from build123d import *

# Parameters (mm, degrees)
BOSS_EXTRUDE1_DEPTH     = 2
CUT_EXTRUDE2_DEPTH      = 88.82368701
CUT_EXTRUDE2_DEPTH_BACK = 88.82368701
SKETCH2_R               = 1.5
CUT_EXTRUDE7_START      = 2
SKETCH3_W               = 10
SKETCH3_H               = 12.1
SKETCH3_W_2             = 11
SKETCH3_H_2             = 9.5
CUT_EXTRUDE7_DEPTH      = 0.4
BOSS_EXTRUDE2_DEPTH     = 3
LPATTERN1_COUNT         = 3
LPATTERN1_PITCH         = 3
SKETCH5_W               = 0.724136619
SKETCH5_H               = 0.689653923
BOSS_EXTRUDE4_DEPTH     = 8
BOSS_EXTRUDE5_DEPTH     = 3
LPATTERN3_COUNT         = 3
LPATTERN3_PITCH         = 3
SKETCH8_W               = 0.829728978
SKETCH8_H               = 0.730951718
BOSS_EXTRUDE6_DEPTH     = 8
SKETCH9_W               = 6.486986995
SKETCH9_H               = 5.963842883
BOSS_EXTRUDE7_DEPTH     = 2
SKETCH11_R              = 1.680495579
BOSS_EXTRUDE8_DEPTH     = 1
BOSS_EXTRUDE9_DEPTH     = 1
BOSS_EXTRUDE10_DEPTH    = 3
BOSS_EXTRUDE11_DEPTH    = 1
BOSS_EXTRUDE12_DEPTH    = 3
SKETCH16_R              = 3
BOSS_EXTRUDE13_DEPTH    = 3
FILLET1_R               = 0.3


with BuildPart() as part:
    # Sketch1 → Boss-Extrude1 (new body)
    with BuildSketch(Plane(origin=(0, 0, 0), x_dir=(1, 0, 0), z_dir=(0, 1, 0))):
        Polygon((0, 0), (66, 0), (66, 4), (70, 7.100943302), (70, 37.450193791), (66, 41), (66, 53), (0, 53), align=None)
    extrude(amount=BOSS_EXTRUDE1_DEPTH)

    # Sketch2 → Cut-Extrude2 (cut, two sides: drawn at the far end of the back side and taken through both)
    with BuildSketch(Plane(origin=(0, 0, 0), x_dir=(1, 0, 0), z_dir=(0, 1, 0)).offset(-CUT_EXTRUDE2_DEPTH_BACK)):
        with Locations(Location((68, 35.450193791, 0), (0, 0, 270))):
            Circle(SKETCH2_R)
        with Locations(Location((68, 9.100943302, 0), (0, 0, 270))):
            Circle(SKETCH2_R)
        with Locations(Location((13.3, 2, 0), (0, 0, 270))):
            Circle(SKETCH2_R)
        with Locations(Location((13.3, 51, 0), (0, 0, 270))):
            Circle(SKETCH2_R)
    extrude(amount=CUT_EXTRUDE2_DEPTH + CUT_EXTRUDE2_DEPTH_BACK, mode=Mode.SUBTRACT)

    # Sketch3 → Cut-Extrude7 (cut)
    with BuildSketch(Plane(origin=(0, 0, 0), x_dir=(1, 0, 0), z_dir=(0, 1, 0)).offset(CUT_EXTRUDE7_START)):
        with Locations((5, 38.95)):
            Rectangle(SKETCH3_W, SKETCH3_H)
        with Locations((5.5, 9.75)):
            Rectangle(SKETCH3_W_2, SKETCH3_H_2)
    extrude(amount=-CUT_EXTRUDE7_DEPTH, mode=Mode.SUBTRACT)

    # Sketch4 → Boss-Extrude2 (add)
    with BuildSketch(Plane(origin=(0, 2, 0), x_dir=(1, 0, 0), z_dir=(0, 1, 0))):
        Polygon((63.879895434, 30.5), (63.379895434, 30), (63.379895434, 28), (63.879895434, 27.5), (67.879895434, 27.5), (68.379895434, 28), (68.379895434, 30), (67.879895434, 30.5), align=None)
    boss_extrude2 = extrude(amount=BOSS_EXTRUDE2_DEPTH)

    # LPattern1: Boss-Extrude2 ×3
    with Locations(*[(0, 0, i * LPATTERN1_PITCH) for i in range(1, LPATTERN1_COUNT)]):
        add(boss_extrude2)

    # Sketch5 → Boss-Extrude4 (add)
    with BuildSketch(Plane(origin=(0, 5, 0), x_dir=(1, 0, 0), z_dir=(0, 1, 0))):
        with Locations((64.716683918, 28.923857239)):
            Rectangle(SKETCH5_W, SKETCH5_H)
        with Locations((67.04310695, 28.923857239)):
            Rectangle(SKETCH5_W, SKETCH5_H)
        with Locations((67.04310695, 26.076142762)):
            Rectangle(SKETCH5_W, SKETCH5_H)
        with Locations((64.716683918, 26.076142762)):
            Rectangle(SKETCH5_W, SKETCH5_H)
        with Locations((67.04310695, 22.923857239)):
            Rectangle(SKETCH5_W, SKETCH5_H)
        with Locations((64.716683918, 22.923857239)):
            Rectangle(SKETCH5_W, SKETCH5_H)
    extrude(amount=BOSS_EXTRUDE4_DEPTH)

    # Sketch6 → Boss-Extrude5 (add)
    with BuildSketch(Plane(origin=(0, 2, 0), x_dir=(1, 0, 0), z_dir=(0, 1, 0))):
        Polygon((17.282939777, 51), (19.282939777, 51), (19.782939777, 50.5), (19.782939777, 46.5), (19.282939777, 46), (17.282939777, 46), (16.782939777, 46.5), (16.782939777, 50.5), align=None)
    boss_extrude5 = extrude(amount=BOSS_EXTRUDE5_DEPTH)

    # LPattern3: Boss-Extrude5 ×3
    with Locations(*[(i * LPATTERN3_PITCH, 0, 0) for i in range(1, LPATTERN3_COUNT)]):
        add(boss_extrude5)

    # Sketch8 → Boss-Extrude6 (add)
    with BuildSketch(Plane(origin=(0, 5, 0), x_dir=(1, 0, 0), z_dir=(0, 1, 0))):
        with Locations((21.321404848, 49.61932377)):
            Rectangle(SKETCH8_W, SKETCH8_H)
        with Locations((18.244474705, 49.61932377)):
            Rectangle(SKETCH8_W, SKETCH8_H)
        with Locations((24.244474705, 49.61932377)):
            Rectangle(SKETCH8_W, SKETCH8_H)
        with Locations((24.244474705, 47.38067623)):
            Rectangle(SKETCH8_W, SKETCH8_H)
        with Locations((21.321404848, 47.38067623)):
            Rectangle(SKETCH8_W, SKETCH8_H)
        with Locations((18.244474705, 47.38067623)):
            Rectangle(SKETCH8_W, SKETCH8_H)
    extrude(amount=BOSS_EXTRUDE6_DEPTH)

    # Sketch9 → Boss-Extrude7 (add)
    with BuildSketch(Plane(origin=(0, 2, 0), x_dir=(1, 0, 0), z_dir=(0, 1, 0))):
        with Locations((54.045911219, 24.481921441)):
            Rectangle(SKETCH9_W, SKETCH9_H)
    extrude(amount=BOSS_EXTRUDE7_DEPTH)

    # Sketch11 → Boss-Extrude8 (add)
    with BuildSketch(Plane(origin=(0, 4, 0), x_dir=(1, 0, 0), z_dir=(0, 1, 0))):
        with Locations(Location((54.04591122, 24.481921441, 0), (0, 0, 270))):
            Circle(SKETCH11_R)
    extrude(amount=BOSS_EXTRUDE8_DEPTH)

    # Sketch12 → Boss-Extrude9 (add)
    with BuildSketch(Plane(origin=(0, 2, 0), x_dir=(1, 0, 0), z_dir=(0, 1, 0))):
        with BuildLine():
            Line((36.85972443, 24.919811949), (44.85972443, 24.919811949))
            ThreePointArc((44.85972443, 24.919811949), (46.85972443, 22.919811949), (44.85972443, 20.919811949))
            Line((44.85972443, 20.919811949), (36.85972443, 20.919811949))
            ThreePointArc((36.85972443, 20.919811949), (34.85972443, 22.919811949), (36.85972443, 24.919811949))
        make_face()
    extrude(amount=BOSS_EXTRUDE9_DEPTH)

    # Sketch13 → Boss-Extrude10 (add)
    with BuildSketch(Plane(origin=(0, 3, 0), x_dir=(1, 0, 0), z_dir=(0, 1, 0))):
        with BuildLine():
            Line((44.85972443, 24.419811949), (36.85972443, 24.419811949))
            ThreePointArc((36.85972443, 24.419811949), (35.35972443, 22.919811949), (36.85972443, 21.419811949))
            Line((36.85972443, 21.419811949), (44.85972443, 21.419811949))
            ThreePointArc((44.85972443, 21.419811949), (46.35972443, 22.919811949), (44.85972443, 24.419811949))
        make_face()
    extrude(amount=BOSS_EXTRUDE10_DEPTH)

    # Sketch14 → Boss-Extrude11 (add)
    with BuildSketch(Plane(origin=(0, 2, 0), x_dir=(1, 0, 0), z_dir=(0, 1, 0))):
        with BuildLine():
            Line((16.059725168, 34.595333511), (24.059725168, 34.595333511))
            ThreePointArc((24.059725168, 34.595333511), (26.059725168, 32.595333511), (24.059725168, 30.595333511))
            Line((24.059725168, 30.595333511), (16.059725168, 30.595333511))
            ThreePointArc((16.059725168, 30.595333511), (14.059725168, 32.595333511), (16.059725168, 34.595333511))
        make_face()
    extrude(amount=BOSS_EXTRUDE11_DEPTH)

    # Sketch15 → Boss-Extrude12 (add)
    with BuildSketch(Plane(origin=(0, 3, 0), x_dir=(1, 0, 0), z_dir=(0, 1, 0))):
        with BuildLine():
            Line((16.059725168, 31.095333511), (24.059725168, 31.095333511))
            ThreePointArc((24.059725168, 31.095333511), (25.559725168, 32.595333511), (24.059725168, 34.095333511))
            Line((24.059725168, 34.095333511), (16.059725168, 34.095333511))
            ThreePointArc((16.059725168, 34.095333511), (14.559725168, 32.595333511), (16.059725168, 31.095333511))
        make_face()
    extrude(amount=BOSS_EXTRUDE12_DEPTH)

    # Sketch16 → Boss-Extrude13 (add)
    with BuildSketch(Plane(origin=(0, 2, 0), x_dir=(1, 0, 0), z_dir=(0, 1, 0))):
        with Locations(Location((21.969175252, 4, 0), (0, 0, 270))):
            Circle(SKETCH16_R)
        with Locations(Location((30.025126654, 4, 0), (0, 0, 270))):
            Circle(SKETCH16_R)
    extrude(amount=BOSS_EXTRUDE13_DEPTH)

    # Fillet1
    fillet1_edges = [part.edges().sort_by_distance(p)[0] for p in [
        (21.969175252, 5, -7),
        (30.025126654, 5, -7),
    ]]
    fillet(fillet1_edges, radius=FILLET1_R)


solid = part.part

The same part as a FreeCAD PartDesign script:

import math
import FreeCAD as App
import Part
import Sketcher
from FreeCAD import Vector
Q = App.Units.Quantity


def edges_at(feature, points):
    """Names of the edges that pass closest to the given points."""
    edges = feature.Shape.Edges
    near = lambda p: min(range(len(edges)), key=lambda i: edges[i].distToShape(Part.Vertex(*p))[0])
    return sorted({f"Edge{near(p) + 1}" for p in points})

doc = App.newDocument("Part")
body = doc.addObject("PartDesign::Body", "Body")

# Sketch on XZ plane
sketch1 = body.newObject("Sketcher::SketchObject", "Sketch")
sketch1.AttachmentSupport = (doc.getObject("XZ_Plane"), [""])
sketch1.MapMode = "FlatFace"
sketch1.addGeometry(Part.LineSegment(Vector(0, 0, 0), Vector(66, 0, 0)), False)
sketch1.addGeometry(Part.LineSegment(Vector(66, 0, 0), Vector(66, -4, 0)), False)
sketch1.addGeometry(Part.LineSegment(Vector(66, -4, 0), Vector(70, -7.1, 0)), False)
sketch1.addGeometry(Part.LineSegment(Vector(70, -7.1, 0), Vector(70, -37.5, 0)), False)
sketch1.addGeometry(Part.LineSegment(Vector(70, -37.5, 0), Vector(66, -41, 0)), False)
sketch1.addGeometry(Part.LineSegment(Vector(66, -41, 0), Vector(66, -53, 0)), False)
sketch1.addGeometry(Part.LineSegment(Vector(66, -53, 0), Vector(0, -53, 0)), False)
sketch1.addGeometry(Part.LineSegment(Vector(0, -53, 0), Vector(0, 0, 0)), False)
sketch1.addConstraint(Sketcher.Constraint("Coincident", 0, 2, 1, 1))
sketch1.addConstraint(Sketcher.Constraint("Coincident", 1, 2, 2, 1))
sketch1.addConstraint(Sketcher.Constraint("Coincident", 2, 2, 3, 1))
sketch1.addConstraint(Sketcher.Constraint("Coincident", 3, 2, 4, 1))
sketch1.addConstraint(Sketcher.Constraint("Coincident", 4, 2, 5, 1))
sketch1.addConstraint(Sketcher.Constraint("Coincident", 5, 2, 6, 1))
sketch1.addConstraint(Sketcher.Constraint("Coincident", 6, 2, 7, 1))
sketch1.addConstraint(Sketcher.Constraint("Coincident", 7, 2, 0, 1))
sketch1.addConstraint(Sketcher.Constraint("Horizontal", 0))
sketch1.addConstraint(Sketcher.Constraint("Vertical", 1))
sketch1.addConstraint(Sketcher.Constraint("Vertical", 3))
sketch1.addConstraint(Sketcher.Constraint("Vertical", 5))
sketch1.addConstraint(Sketcher.Constraint("Horizontal", 6))
sketch1.addConstraint(Sketcher.Constraint("Vertical", 7))
sketch1.addConstraint(Sketcher.Constraint("Coincident", 7, 2, -1, 1))
sketch1.addConstraint(Sketcher.Constraint("Vertical", 1, 2, 4, 2))
sketch1.addConstraint(Sketcher.Constraint("DistanceX", 0, 1, 0, 2, Q("66 mm")))
sketch1.addConstraint(Sketcher.Constraint("DistanceY", 1, 2, 1, 1, Q("4 mm")))
sketch1.addConstraint(Sketcher.Constraint("DistanceY", 5, 2, 5, 1, Q("12 mm")))
sketch1.addConstraint(Sketcher.Constraint("DistanceY", 7, 1, 7, 2, Q("53 mm")))
sketch1.addConstraint(Sketcher.Constraint("DistanceX", -1, 1, 2, 2, Q("70 mm")))
sketch1.addConstraint(Sketcher.Constraint("Distance", 4, Q("5.348002 mm")))
sketch1.addConstraint(Sketcher.Constraint("DistanceY", 3, 2, 3, 1, Q("30.34925 mm")))
pad1 = body.newObject("PartDesign::Pad", "Pad")
pad1.Profile = sketch1
pad1.Length = 2
pad1.Reversed = True

# Sketch on XZ plane
sketch2 = body.newObject("Sketcher::SketchObject", "Sketch001")
sketch2.AttachmentSupport = (doc.getObject("XZ_Plane"), [""])
sketch2.MapMode = "FlatFace"
sketch2.addGeometry(Part.Circle(Vector(68, -35.5, 0), Vector(0, 0, 1), 1.5), False)
sketch2.addGeometry(Part.Circle(Vector(68, -9.1, 0), Vector(0, 0, 1), 1.5), False)
sketch2.addGeometry(Part.Circle(Vector(13.3, -2, 0), Vector(0, 0, 1), 1.5), False)
sketch2.addGeometry(Part.Circle(Vector(13.3, -51, 0), Vector(0, 0, 1), 1.5), False)
sketch2.addConstraint(Sketcher.Constraint("Equal", 0, 1))
sketch2.addConstraint(Sketcher.Constraint("Equal", 1, 2))
sketch2.addConstraint(Sketcher.Constraint("Equal", 2, 3))
sketch2.addConstraint(Sketcher.Constraint("Vertical", 0, 3, 1, 3))
sketch2.addConstraint(Sketcher.Constraint("Vertical", 2, 3, 3, 3))
sketch2.addConstraint(Sketcher.Constraint("Diameter", 0, Q("3 mm")))
sketch2.addConstraint(Sketcher.Constraint("DistanceX", -1, 1, 0, 3, Q("68 mm")))
sketch2.addConstraint(Sketcher.Constraint("DistanceY", 2, 3, -1, 1, Q("2 mm")))
sketch2.addConstraint(Sketcher.Constraint("DistanceY", 3, 3, -1, 1, Q("51 mm")))
sketch2.addConstraint(Sketcher.Constraint("DistanceX", -1, 1, 2, 3, Q("13.3 mm")))
sketch2.addConstraint(Sketcher.Constraint("DistanceY", 0, 3, 1, 3, Q("26.34925 mm")))
sketch2.addConstraint(Sketcher.Constraint("DistanceY", 0, 3, -1, 1, Q("35.450194 mm")))
pocket1 = body.newObject("PartDesign::Pocket", "Pocket")
pocket1.Profile = sketch2
pocket1.Type = "ThroughAll"
pocket1.Midplane = True

# Sketch on XZ plane
sketch3 = body.newObject("Sketcher::SketchObject", "Sketch002")
sketch3.AttachmentSupport = (doc.getObject("XZ_Plane"), [""])
sketch3.MapMode = "FlatFace"
sketch3.AttachmentOffset = App.Placement(Vector(0, 0, -2), App.Rotation())
sketch3.addGeometry(Part.LineSegment(Vector(0, -45, 0), Vector(0, -33, 0)), False)
sketch3.addGeometry(Part.LineSegment(Vector(0, -33, 0), Vector(10, -33, 0)), False)
sketch3.addGeometry(Part.LineSegment(Vector(10, -33, 0), Vector(10, -45, 0)), False)
sketch3.addGeometry(Part.LineSegment(Vector(10, -45, 0), Vector(0, -45, 0)), False)
sketch3.addGeometry(Part.LineSegment(Vector(0, -14, 0), Vector(0, -5, 0)), False)
sketch3.addGeometry(Part.LineSegment(Vector(0, -5, 0), Vector(11, -5, 0)), False)
sketch3.addGeometry(Part.LineSegment(Vector(11, -5, 0), Vector(11, -14, 0)), False)
sketch3.addGeometry(Part.LineSegment(Vector(11, -14, 0), Vector(0, -14, 0)), False)
sketch3.addConstraint(Sketcher.Constraint("Coincident", 0, 2, 1, 1))
sketch3.addConstraint(Sketcher.Constraint("Coincident", 1, 2, 2, 1))
sketch3.addConstraint(Sketcher.Constraint("Coincident", 2, 2, 3, 1))
sketch3.addConstraint(Sketcher.Constraint("Coincident", 3, 2, 0, 1))
sketch3.addConstraint(Sketcher.Constraint("Coincident", 4, 2, 5, 1))
sketch3.addConstraint(Sketcher.Constraint("Coincident", 5, 2, 6, 1))
sketch3.addConstraint(Sketcher.Constraint("Coincident", 6, 2, 7, 1))
sketch3.addConstraint(Sketcher.Constraint("Coincident", 7, 2, 4, 1))
sketch3.addConstraint(Sketcher.Constraint("Vertical", 0))
sketch3.addConstraint(Sketcher.Constraint("Horizontal", 1))
sketch3.addConstraint(Sketcher.Constraint("Vertical", 2))
sketch3.addConstraint(Sketcher.Constraint("Horizontal", 3))
sketch3.addConstraint(Sketcher.Constraint("Vertical", 4))
sketch3.addConstraint(Sketcher.Constraint("Horizontal", 5))
sketch3.addConstraint(Sketcher.Constraint("Vertical", 6))
sketch3.addConstraint(Sketcher.Constraint("Horizontal", 7))
sketch3.addConstraint(Sketcher.Constraint("PointOnObject", 0, 2, -2))
sketch3.addConstraint(Sketcher.Constraint("PointOnObject", 4, 2, -2))
sketch3.addConstraint(Sketcher.Constraint("DistanceX", 1, 1, 1, 2, Q("10 mm")))
sketch3.addConstraint(Sketcher.Constraint("DistanceX", 5, 1, 5, 2, Q("11 mm")))
sketch3.addConstraint(Sketcher.Constraint("DistanceY", 0, 1, 0, 2, Q("12.1 mm")))
sketch3.addConstraint(Sketcher.Constraint("DistanceY", 4, 1, 4, 2, Q("9.5 mm")))
sketch3.addConstraint(Sketcher.Constraint("DistanceY", 2, 2, -1, 1, Q("45 mm")))
sketch3.addConstraint(Sketcher.Constraint("DistanceY", 4, 2, -1, 1, Q("5 mm")))
pocket2 = body.newObject("PartDesign::Pocket", "Pocket001")
pocket2.Profile = sketch3
pocket2.Length = 0.4
pocket2.Reversed = True

# Sketch on XZ plane
sketch4 = body.newObject("Sketcher::SketchObject", "Sketch003")
sketch4.AttachmentSupport = (doc.getObject("XZ_Plane"), [""])
sketch4.MapMode = "FlatFace"
sketch4.AttachmentOffset = App.Placement(Vector(0, 0, -2), App.Rotation())
sketch4.addGeometry(Part.LineSegment(Vector(63.9, -30.5, 0), Vector(63.4, -30, 0)), False)
sketch4.addGeometry(Part.LineSegment(Vector(63.4, -30, 0), Vector(63.4, -28, 0)), False)
sketch4.addGeometry(Part.LineSegment(Vector(63.4, -28, 0), Vector(63.9, -27.5, 0)), False)
sketch4.addGeometry(Part.LineSegment(Vector(63.9, -27.5, 0), Vector(67.9, -27.5, 0)), False)
sketch4.addGeometry(Part.LineSegment(Vector(67.9, -27.5, 0), Vector(68.4, -28, 0)), False)
sketch4.addGeometry(Part.LineSegment(Vector(68.4, -28, 0), Vector(68.4, -30, 0)), False)
sketch4.addGeometry(Part.LineSegment(Vector(68.4, -30, 0), Vector(67.9, -30.5, 0)), False)
sketch4.addGeometry(Part.LineSegment(Vector(67.9, -30.5, 0), Vector(63.9, -30.5, 0)), False)
sketch4.addConstraint(Sketcher.Constraint("Coincident", 0, 2, 1, 1))
sketch4.addConstraint(Sketcher.Constraint("Coincident", 1, 2, 2, 1))
sketch4.addConstraint(Sketcher.Constraint("Coincident", 2, 2, 3, 1))
sketch4.addConstraint(Sketcher.Constraint("Coincident", 3, 2, 4, 1))
sketch4.addConstraint(Sketcher.Constraint("Coincident", 4, 2, 5, 1))
sketch4.addConstraint(Sketcher.Constraint("Coincident", 5, 2, 6, 1))
sketch4.addConstraint(Sketcher.Constraint("Coincident", 6, 2, 7, 1))
sketch4.addConstraint(Sketcher.Constraint("Coincident", 7, 2, 0, 1))
sketch4.addConstraint(Sketcher.Constraint("Vertical", 1))
sketch4.addConstraint(Sketcher.Constraint("Horizontal", 3))
sketch4.addConstraint(Sketcher.Constraint("Vertical", 5))
sketch4.addConstraint(Sketcher.Constraint("Horizontal", 7))
sketch4.addConstraint(Sketcher.Constraint("Perpendicular", 0, 2))
sketch4.addConstraint(Sketcher.Constraint("Perpendicular", 2, 4))
sketch4.addConstraint(Sketcher.Constraint("Perpendicular", 4, 6))
sketch4.addConstraint(Sketcher.Constraint("Horizontal", 1, 2, 4, 2))
sketch4.addConstraint(Sketcher.Constraint("Horizontal", 0, 2, 5, 2))
sketch4.addConstraint(Sketcher.Constraint("Vertical", 3, 2, 6, 2))
sketch4.addConstraint(Sketcher.Constraint("Vertical", 2, 2, 7, 2))
sketch4.addConstraint(Sketcher.Constraint("DistanceX", 3, 1, 3, 2, Q("4 mm")))
sketch4.addConstraint(Sketcher.Constraint("DistanceY", 1, 1, 1, 2, Q("2 mm")))
sketch4.addConstraint(Sketcher.Constraint("DistanceY", 0, 2, -1, 1, Q("30 mm")))
sketch4.addConstraint(Sketcher.Constraint("DistanceX", 1, 2, 4, 2, Q("5 mm")))
sketch4.addConstraint(Sketcher.Constraint("DistanceX", -1, 1, 0, 2, Q("63.379895 mm")))
pad2 = body.newObject("PartDesign::Pad", "Pad001")
pad2.Profile = sketch4
pad2.Length = 3
pad2.Reversed = True
doc.recompute()

linearpattern = body.newObject("PartDesign::LinearPattern", "LinearPattern")
linearpattern.Originals = [pad2]
linearpattern.Direction = (doc.getObject("Z_Axis"), [""])
linearpattern.Mode = "offset"
linearpattern.Offset = 3
linearpattern.Occurrences = 3
body.Tip = linearpattern

# Sketch on XZ plane
sketch5 = body.newObject("Sketcher::SketchObject", "Sketch004")
sketch5.AttachmentSupport = (doc.getObject("XZ_Plane"), [""])
sketch5.MapMode = "FlatFace"
sketch5.AttachmentOffset = App.Placement(Vector(0, 0, -5), App.Rotation())
sketch5.addGeometry(Part.LineSegment(Vector(64.4, -29.3, 0), Vector(64.4, -28.6, 0)), False)
sketch5.addGeometry(Part.LineSegment(Vector(64.4, -28.6, 0), Vector(65.1, -28.6, 0)), False)
sketch5.addGeometry(Part.LineSegment(Vector(65.1, -28.6, 0), Vector(65.1, -29.3, 0)), False)
sketch5.addGeometry(Part.LineSegment(Vector(65.1, -29.3, 0), Vector(64.4, -29.3, 0)), False)
sketch5.addGeometry(Part.LineSegment(Vector(66.7, -29.3, 0), Vector(66.7, -28.6, 0)), False)
sketch5.addGeometry(Part.LineSegment(Vector(66.7, -28.6, 0), Vector(67.4, -28.6, 0)), False)
sketch5.addGeometry(Part.LineSegment(Vector(67.4, -28.6, 0), Vector(67.4, -29.3, 0)), False)
sketch5.addGeometry(Part.LineSegment(Vector(67.4, -29.3, 0), Vector(66.7, -29.3, 0)), False)
sketch5.addGeometry(Part.LineSegment(Vector(66.7, -26.4, 0), Vector(66.7, -25.7, 0)), False)
sketch5.addGeometry(Part.LineSegment(Vector(66.7, -25.7, 0), Vector(67.4, -25.7, 0)), False)
sketch5.addGeometry(Part.LineSegment(Vector(67.4, -25.7, 0), Vector(67.4, -26.4, 0)), False)
sketch5.addGeometry(Part.LineSegment(Vector(67.4, -26.4, 0), Vector(66.7, -26.4, 0)), False)
sketch5.addGeometry(Part.LineSegment(Vector(64.4, -26.4, 0), Vector(64.4, -25.7, 0)), False)
sketch5.addGeometry(Part.LineSegment(Vector(64.4, -25.7, 0), Vector(65.1, -25.7, 0)), False)
sketch5.addGeometry(Part.LineSegment(Vector(65.1, -25.7, 0), Vector(65.1, -26.4, 0)), False)
sketch5.addGeometry(Part.LineSegment(Vector(65.1, -26.4, 0), Vector(64.4, -26.4, 0)), False)
sketch5.addGeometry(Part.LineSegment(Vector(66.7, -23.3, 0), Vector(66.7, -22.6, 0)), False)
sketch5.addGeometry(Part.LineSegment(Vector(66.7, -22.6, 0), Vector(67.4, -22.6, 0)), False)
sketch5.addGeometry(Part.LineSegment(Vector(67.4, -22.6, 0), Vector(67.4, -23.3, 0)), False)
sketch5.addGeometry(Part.LineSegment(Vector(67.4, -23.3, 0), Vector(66.7, -23.3, 0)), False)
sketch5.addGeometry(Part.LineSegment(Vector(64.4, -23.3, 0), Vector(64.4, -22.6, 0)), False)
sketch5.addGeometry(Part.LineSegment(Vector(64.4, -22.6, 0), Vector(65.1, -22.6, 0)), False)
sketch5.addGeometry(Part.LineSegment(Vector(65.1, -22.6, 0), Vector(65.1, -23.3, 0)), False)
sketch5.addGeometry(Part.LineSegment(Vector(65.1, -23.3, 0), Vector(64.4, -23.3, 0)), False)
sketch5.addConstraint(Sketcher.Constraint("Coincident", 0, 2, 1, 1))
sketch5.addConstraint(Sketcher.Constraint("Coincident", 1, 2, 2, 1))
sketch5.addConstraint(Sketcher.Constraint("Coincident", 2, 2, 3, 1))
sketch5.addConstraint(Sketcher.Constraint("Coincident", 3, 2, 0, 1))
sketch5.addConstraint(Sketcher.Constraint("Coincident", 4, 2, 5, 1))
sketch5.addConstraint(Sketcher.Constraint("Coincident", 5, 2, 6, 1))
sketch5.addConstraint(Sketcher.Constraint("Coincident", 6, 2, 7, 1))
sketch5.addConstraint(Sketcher.Constraint("Coincident", 7, 2, 4, 1))
sketch5.addConstraint(Sketcher.Constraint("Coincident", 8, 2, 9, 1))
sketch5.addConstraint(Sketcher.Constraint("Coincident", 9, 2, 10, 1))
sketch5.addConstraint(Sketcher.Constraint("Coincident", 10, 2, 11, 1))
sketch5.addConstraint(Sketcher.Constraint("Coincident", 11, 2, 8, 1))
sketch5.addConstraint(Sketcher.Constraint("Coincident", 12, 2, 13, 1))
sketch5.addConstraint(Sketcher.Constraint("Coincident", 13, 2, 14, 1))
sketch5.addConstraint(Sketcher.Constraint("Coincident", 14, 2, 15, 1))
sketch5.addConstraint(Sketcher.Constraint("Coincident", 15, 2, 12, 1))
sketch5.addConstraint(Sketcher.Constraint("Coincident", 16, 2, 17, 1))
sketch5.addConstraint(Sketcher.Constraint("Coincident", 17, 2, 18, 1))
sketch5.addConstraint(Sketcher.Constraint("Coincident", 18, 2, 19, 1))
sketch5.addConstraint(Sketcher.Constraint("Coincident", 19, 2, 16, 1))
sketch5.addConstraint(Sketcher.Constraint("Coincident", 20, 2, 21, 1))
sketch5.addConstraint(Sketcher.Constraint("Coincident", 21, 2, 22, 1))
sketch5.addConstraint(Sketcher.Constraint("Coincident", 22, 2, 23, 1))
sketch5.addConstraint(Sketcher.Constraint("Coincident", 23, 2, 20, 1))
sketch5.addConstraint(Sketcher.Constraint("Vertical", 0))
sketch5.addConstraint(Sketcher.Constraint("Horizontal", 1))
sketch5.addConstraint(Sketcher.Constraint("Vertical", 2))
sketch5.addConstraint(Sketcher.Constraint("Horizontal", 3))
sketch5.addConstraint(Sketcher.Constraint("Vertical", 4))
sketch5.addConstraint(Sketcher.Constraint("Horizontal", 5))
sketch5.addConstraint(Sketcher.Constraint("Vertical", 6))
sketch5.addConstraint(Sketcher.Constraint("Horizontal", 7))
sketch5.addConstraint(Sketcher.Constraint("Vertical", 8))
sketch5.addConstraint(Sketcher.Constraint("Horizontal", 9))
sketch5.addConstraint(Sketcher.Constraint("Vertical", 10))
sketch5.addConstraint(Sketcher.Constraint("Horizontal", 11))
sketch5.addConstraint(Sketcher.Constraint("Vertical", 12))
sketch5.addConstraint(Sketcher.Constraint("Horizontal", 13))
sketch5.addConstraint(Sketcher.Constraint("Vertical", 14))
sketch5.addConstraint(Sketcher.Constraint("Horizontal", 15))
sketch5.addConstraint(Sketcher.Constraint("Vertical", 16))
sketch5.addConstraint(Sketcher.Constraint("Horizontal", 17))
sketch5.addConstraint(Sketcher.Constraint("Vertical", 18))
sketch5.addConstraint(Sketcher.Constraint("Horizontal", 19))
sketch5.addConstraint(Sketcher.Constraint("Vertical", 20))
sketch5.addConstraint(Sketcher.Constraint("Horizontal", 21))
sketch5.addConstraint(Sketcher.Constraint("Vertical", 22))
sketch5.addConstraint(Sketcher.Constraint("Horizontal", 23))
sketch5.addConstraint(Sketcher.Constraint("Horizontal", 1, 2, 4, 2))
sketch5.addConstraint(Sketcher.Constraint("Horizontal", 3, 2, 6, 2))
sketch5.addConstraint(Sketcher.Constraint("Horizontal", 9, 2, 12, 2))
sketch5.addConstraint(Sketcher.Constraint("Horizontal", 11, 2, 14, 2))
sketch5.addConstraint(Sketcher.Constraint("Horizontal", 17, 2, 20, 2))
sketch5.addConstraint(Sketcher.Constraint("Horizontal", 19, 2, 22, 2))
sketch5.addConstraint(Sketcher.Constraint("Vertical", 7, 2, 8, 2))
sketch5.addConstraint(Sketcher.Constraint("Vertical", 6, 2, 9, 2))
sketch5.addConstraint(Sketcher.Constraint("Vertical", 3, 2, 12, 2))
sketch5.addConstraint(Sketcher.Constraint("Vertical", 2, 2, 13, 2))
sketch5.addConstraint(Sketcher.Constraint("Vertical", 11, 2, 16, 2))
sketch5.addConstraint(Sketcher.Constraint("Vertical", 10, 2, 17, 2))
sketch5.addConstraint(Sketcher.Constraint("Vertical", 15, 2, 20, 2))
sketch5.addConstraint(Sketcher.Constraint("Vertical", 14, 2, 21, 2))
sketch5.addConstraint(Sketcher.Constraint("Equal", 3, 5))
sketch5.addConstraint(Sketcher.Constraint("Equal", 6, 8))
sketch5.addConstraint(Sketcher.Constraint("Equal", 14, 16))
sketch5.addConstraint(Sketcher.Constraint("DistanceX", 1, 1, 1, 2, Q("0.724137 mm")))
sketch5.addConstraint(Sketcher.Constraint("DistanceY", 0, 1, 0, 2, Q("0.689654 mm")))
sketch5.addConstraint(Sketcher.Constraint("DistanceY", 0, 2, -1, 1, Q("28.57903 mm")))
sketch5.addConstraint(Sketcher.Constraint("DistanceX", -1, 1, 4, 2, Q("66.681039 mm")))
sketch5.addConstraint(Sketcher.Constraint("DistanceY", 10, 2, -1, 1, Q("26.42097 mm")))
sketch5.addConstraint(Sketcher.Constraint("DistanceY", 16, 2, -1, 1, Q("22.57903 mm")))
sketch5.addConstraint(Sketcher.Constraint("DistanceX", 0, 2, 5, 2, Q("3.05056 mm")))
pad3 = body.newObject("PartDesign::Pad", "Pad002")
pad3.Profile = sketch5
pad3.Length = 8
pad3.Reversed = True

# Sketch on XZ plane
sketch6 = body.newObject("Sketcher::SketchObject", "Sketch005")
sketch6.AttachmentSupport = (doc.getObject("XZ_Plane"), [""])
sketch6.MapMode = "FlatFace"
sketch6.AttachmentOffset = App.Placement(Vector(0, 0, -2), App.Rotation())
sketch6.addGeometry(Part.LineSegment(Vector(19.3, -51, 0), Vector(17.3, -51, 0)), False)
sketch6.addGeometry(Part.LineSegment(Vector(17.3, -51, 0), Vector(16.8, -50.5, 0)), False)
sketch6.addGeometry(Part.LineSegment(Vector(16.8, -50.5, 0), Vector(16.8, -46.5, 0)), False)
sketch6.addGeometry(Part.LineSegment(Vector(16.8, -46.5, 0), Vector(17.3, -46, 0)), False)
sketch6.addGeometry(Part.LineSegment(Vector(17.3, -46, 0), Vector(19.3, -46, 0)), False)
sketch6.addGeometry(Part.LineSegment(Vector(19.3, -46, 0), Vector(19.8, -46.5, 0)), False)
sketch6.addGeometry(Part.LineSegment(Vector(19.8, -46.5, 0), Vector(19.8, -50.5, 0)), False)
sketch6.addGeometry(Part.LineSegment(Vector(19.8, -50.5, 0), Vector(19.3, -51, 0)), False)
sketch6.addConstraint(Sketcher.Constraint("Coincident", 0, 2, 1, 1))
sketch6.addConstraint(Sketcher.Constraint("Coincident", 1, 2, 2, 1))
sketch6.addConstraint(Sketcher.Constraint("Coincident", 2, 2, 3, 1))
sketch6.addConstraint(Sketcher.Constraint("Coincident", 3, 2, 4, 1))
sketch6.addConstraint(Sketcher.Constraint("Coincident", 4, 2, 5, 1))
sketch6.addConstraint(Sketcher.Constraint("Coincident", 5, 2, 6, 1))
sketch6.addConstraint(Sketcher.Constraint("Coincident", 6, 2, 7, 1))
sketch6.addConstraint(Sketcher.Constraint("Coincident", 7, 2, 0, 1))
sketch6.addConstraint(Sketcher.Constraint("Horizontal", 0))
sketch6.addConstraint(Sketcher.Constraint("Vertical", 2))
sketch6.addConstraint(Sketcher.Constraint("Horizontal", 4))
sketch6.addConstraint(Sketcher.Constraint("Vertical", 6))
sketch6.addConstraint(Sketcher.Constraint("Perpendicular", 1, 3))
sketch6.addConstraint(Sketcher.Constraint("Perpendicular", 3, 5))
sketch6.addConstraint(Sketcher.Constraint("Perpendicular", 5, 7))
sketch6.addConstraint(Sketcher.Constraint("Horizontal", 2, 2, 5, 2))
sketch6.addConstraint(Sketcher.Constraint("Horizontal", 1, 2, 6, 2))
sketch6.addConstraint(Sketcher.Constraint("Vertical", 0, 2, 3, 2))
sketch6.addConstraint(Sketcher.Constraint("Vertical", 4, 2, 7, 2))
sketch6.addConstraint(Sketcher.Constraint("DistanceX", 0, 2, 0, 1, Q("2 mm")))
sketch6.addConstraint(Sketcher.Constraint("DistanceY", 2, 1, 2, 2, Q("4 mm")))
sketch6.addConstraint(Sketcher.Constraint("DistanceY", 0, 2, -1, 1, Q("51 mm")))
sketch6.addConstraint(Sketcher.Constraint("DistanceY", 3, 2, -1, 1, Q("46 mm")))
sketch6.addConstraint(Sketcher.Constraint("DistanceX", -1, 1, 0, 2, Q("17.28294 mm")))
pad4 = body.newObject("PartDesign::Pad", "Pad003")
pad4.Profile = sketch6
pad4.Length = 3
pad4.Reversed = True
doc.recompute()

linearpattern2 = body.newObject("PartDesign::LinearPattern", "LinearPattern001")
linearpattern2.Originals = [pad4]
linearpattern2.Direction = (doc.getObject("X_Axis"), [""])
linearpattern2.Mode = "offset"
linearpattern2.Offset = 3
linearpattern2.Occurrences = 3
body.Tip = linearpattern2

# Sketch on XZ plane
sketch7 = body.newObject("Sketcher::SketchObject", "Sketch006")
sketch7.AttachmentSupport = (doc.getObject("XZ_Plane"), [""])
sketch7.MapMode = "FlatFace"
sketch7.AttachmentOffset = App.Placement(Vector(0, 0, -5), App.Rotation())
sketch7.addGeometry(Part.LineSegment(Vector(20.9, -50, 0), Vector(20.9, -49.3, 0)), False)
sketch7.addGeometry(Part.LineSegment(Vector(20.9, -49.3, 0), Vector(21.7, -49.3, 0)), False)
sketch7.addGeometry(Part.LineSegment(Vector(21.7, -49.3, 0), Vector(21.7, -50, 0)), False)
sketch7.addGeometry(Part.LineSegment(Vector(21.7, -50, 0), Vector(20.9, -50, 0)), False)
sketch7.addGeometry(Part.LineSegment(Vector(17.8, -50, 0), Vector(17.8, -49.3, 0)), False)
sketch7.addGeometry(Part.LineSegment(Vector(17.8, -49.3, 0), Vector(18.7, -49.3, 0)), False)
sketch7.addGeometry(Part.LineSegment(Vector(18.7, -49.3, 0), Vector(18.7, -50, 0)), False)
sketch7.addGeometry(Part.LineSegment(Vector(18.7, -50, 0), Vector(17.8, -50, 0)), False)
sketch7.addGeometry(Part.LineSegment(Vector(23.8, -50, 0), Vector(23.8, -49.3, 0)), False)
sketch7.addGeometry(Part.LineSegment(Vector(23.8, -49.3, 0), Vector(24.7, -49.3, 0)), False)
sketch7.addGeometry(Part.LineSegment(Vector(24.7, -49.3, 0), Vector(24.7, -50, 0)), False)
sketch7.addGeometry(Part.LineSegment(Vector(24.7, -50, 0), Vector(23.8, -50, 0)), False)
sketch7.addGeometry(Part.LineSegment(Vector(23.8, -47.7, 0), Vector(23.8, -47, 0)), False)
sketch7.addGeometry(Part.LineSegment(Vector(23.8, -47, 0), Vector(24.7, -47, 0)), False)
sketch7.addGeometry(Part.LineSegment(Vector(24.7, -47, 0), Vector(24.7, -47.7, 0)), False)
sketch7.addGeometry(Part.LineSegment(Vector(24.7, -47.7, 0), Vector(23.8, -47.7, 0)), False)
sketch7.addGeometry(Part.LineSegment(Vector(20.9, -47.7, 0), Vector(20.9, -47, 0)), False)
sketch7.addGeometry(Part.LineSegment(Vector(20.9, -47, 0), Vector(21.7, -47, 0)), False)
sketch7.addGeometry(Part.LineSegment(Vector(21.7, -47, 0), Vector(21.7, -47.7, 0)), False)
sketch7.addGeometry(Part.LineSegment(Vector(21.7, -47.7, 0), Vector(20.9, -47.7, 0)), False)
sketch7.addGeometry(Part.LineSegment(Vector(17.8, -47.7, 0), Vector(17.8, -47, 0)), False)
sketch7.addGeometry(Part.LineSegment(Vector(17.8, -47, 0), Vector(18.7, -47, 0)), False)
sketch7.addGeometry(Part.LineSegment(Vector(18.7, -47, 0), Vector(18.7, -47.7, 0)), False)
sketch7.addGeometry(Part.LineSegment(Vector(18.7, -47.7, 0), Vector(17.8, -47.7, 0)), False)
sketch7.addConstraint(Sketcher.Constraint("Coincident", 0, 2, 1, 1))
sketch7.addConstraint(Sketcher.Constraint("Coincident", 1, 2, 2, 1))
sketch7.addConstraint(Sketcher.Constraint("Coincident", 2, 2, 3, 1))
sketch7.addConstraint(Sketcher.Constraint("Coincident", 3, 2, 0, 1))
sketch7.addConstraint(Sketcher.Constraint("Coincident", 4, 2, 5, 1))
sketch7.addConstraint(Sketcher.Constraint("Coincident", 5, 2, 6, 1))
sketch7.addConstraint(Sketcher.Constraint("Coincident", 6, 2, 7, 1))
sketch7.addConstraint(Sketcher.Constraint("Coincident", 7, 2, 4, 1))
sketch7.addConstraint(Sketcher.Constraint("Coincident", 8, 2, 9, 1))
sketch7.addConstraint(Sketcher.Constraint("Coincident", 9, 2, 10, 1))
sketch7.addConstraint(Sketcher.Constraint("Coincident", 10, 2, 11, 1))
sketch7.addConstraint(Sketcher.Constraint("Coincident", 11, 2, 8, 1))
sketch7.addConstraint(Sketcher.Constraint("Coincident", 12, 2, 13, 1))
sketch7.addConstraint(Sketcher.Constraint("Coincident", 13, 2, 14, 1))
sketch7.addConstraint(Sketcher.Constraint("Coincident", 14, 2, 15, 1))
sketch7.addConstraint(Sketcher.Constraint("Coincident", 15, 2, 12, 1))
sketch7.addConstraint(Sketcher.Constraint("Coincident", 16, 2, 17, 1))
sketch7.addConstraint(Sketcher.Constraint("Coincident", 17, 2, 18, 1))
sketch7.addConstraint(Sketcher.Constraint("Coincident", 18, 2, 19, 1))
sketch7.addConstraint(Sketcher.Constraint("Coincident", 19, 2, 16, 1))
sketch7.addConstraint(Sketcher.Constraint("Coincident", 20, 2, 21, 1))
sketch7.addConstraint(Sketcher.Constraint("Coincident", 21, 2, 22, 1))
sketch7.addConstraint(Sketcher.Constraint("Coincident", 22, 2, 23, 1))
sketch7.addConstraint(Sketcher.Constraint("Coincident", 23, 2, 20, 1))
sketch7.addConstraint(Sketcher.Constraint("Vertical", 0))
sketch7.addConstraint(Sketcher.Constraint("Horizontal", 1))
sketch7.addConstraint(Sketcher.Constraint("Vertical", 2))
sketch7.addConstraint(Sketcher.Constraint("Horizontal", 3))
sketch7.addConstraint(Sketcher.Constraint("Vertical", 4))
sketch7.addConstraint(Sketcher.Constraint("Horizontal", 5))
sketch7.addConstraint(Sketcher.Constraint("Vertical", 6))
sketch7.addConstraint(Sketcher.Constraint("Horizontal", 7))
sketch7.addConstraint(Sketcher.Constraint("Vertical", 8))
sketch7.addConstraint(Sketcher.Constraint("Horizontal", 9))
sketch7.addConstraint(Sketcher.Constraint("Vertical", 10))
sketch7.addConstraint(Sketcher.Constraint("Horizontal", 11))
sketch7.addConstraint(Sketcher.Constraint("Vertical", 12))
sketch7.addConstraint(Sketcher.Constraint("Horizontal", 13))
sketch7.addConstraint(Sketcher.Constraint("Vertical", 14))
sketch7.addConstraint(Sketcher.Constraint("Horizontal", 15))
sketch7.addConstraint(Sketcher.Constraint("Vertical", 16))
sketch7.addConstraint(Sketcher.Constraint("Horizontal", 17))
sketch7.addConstraint(Sketcher.Constraint("Vertical", 18))
sketch7.addConstraint(Sketcher.Constraint("Horizontal", 19))
sketch7.addConstraint(Sketcher.Constraint("Vertical", 20))
sketch7.addConstraint(Sketcher.Constraint("Horizontal", 21))
sketch7.addConstraint(Sketcher.Constraint("Vertical", 22))
sketch7.addConstraint(Sketcher.Constraint("Horizontal", 23))
sketch7.addConstraint(Sketcher.Constraint("Horizontal", 1, 2, 4, 2))
sketch7.addConstraint(Sketcher.Constraint("Horizontal", 3, 2, 6, 2))
sketch7.addConstraint(Sketcher.Constraint("Horizontal", 5, 2, 8, 2))
sketch7.addConstraint(Sketcher.Constraint("Horizontal", 7, 2, 10, 2))
sketch7.addConstraint(Sketcher.Constraint("Horizontal", 13, 2, 16, 2))
sketch7.addConstraint(Sketcher.Constraint("Horizontal", 15, 2, 18, 2))
sketch7.addConstraint(Sketcher.Constraint("Horizontal", 17, 2, 20, 2))
sketch7.addConstraint(Sketcher.Constraint("Horizontal", 19, 2, 22, 2))
sketch7.addConstraint(Sketcher.Constraint("Vertical", 11, 2, 12, 2))
sketch7.addConstraint(Sketcher.Constraint("Vertical", 10, 2, 13, 2))
sketch7.addConstraint(Sketcher.Constraint("Vertical", 3, 2, 16, 2))
sketch7.addConstraint(Sketcher.Constraint("Vertical", 2, 2, 17, 2))
sketch7.addConstraint(Sketcher.Constraint("Vertical", 7, 2, 20, 2))
sketch7.addConstraint(Sketcher.Constraint("Vertical", 6, 2, 21, 2))
sketch7.addConstraint(Sketcher.Constraint("Equal", 3, 5))
sketch7.addConstraint(Sketcher.Constraint("Equal", 7, 9))
sketch7.addConstraint(Sketcher.Constraint("Equal", 10, 12))
sketch7.addConstraint(Sketcher.Constraint("DistanceX", 1, 1, 1, 2, Q("0.829729 mm")))
sketch7.addConstraint(Sketcher.Constraint("DistanceY", 0, 1, 0, 2, Q("0.730952 mm")))
sketch7.addConstraint(Sketcher.Constraint("DistanceY", 2, 2, -1, 1, Q("49.9848 mm")))
sketch7.addConstraint(Sketcher.Constraint("DistanceY", 12, 2, -1, 1, Q("47.0152 mm")))
sketch7.addConstraint(Sketcher.Constraint("DistanceX", 5, 2, 0, 2, Q("2.247201 mm")))
sketch7.addConstraint(Sketcher.Constraint("DistanceX", 0, 2, 9, 2, Q("3.752799 mm")))
sketch7.addConstraint(Sketcher.Constraint("DistanceX", -1, 1, 0, 2, Q("20.90654 mm")))
pad5 = body.newObject("PartDesign::Pad", "Pad004")
pad5.Profile = sketch7
pad5.Length = 8
pad5.Reversed = True

# Sketch on XZ plane
sketch8 = body.newObject("Sketcher::SketchObject", "Sketch007")
sketch8.AttachmentSupport = (doc.getObject("XZ_Plane"), [""])
sketch8.MapMode = "FlatFace"
sketch8.AttachmentOffset = App.Placement(Vector(0, 0, -2), App.Rotation())
sketch8.addGeometry(Part.LineSegment(Vector(51, -27, 0), Vector(51, -22, 0)), False)
sketch8.addGeometry(Part.LineSegment(Vector(51, -22, 0), Vector(57, -22, 0)), False)
sketch8.addGeometry(Part.LineSegment(Vector(57, -22, 0), Vector(57, -27, 0)), False)
sketch8.addGeometry(Part.LineSegment(Vector(57, -27, 0), Vector(51, -27, 0)), False)
sketch8.addConstraint(Sketcher.Constraint("Coincident", 0, 2, 1, 1))
sketch8.addConstraint(Sketcher.Constraint("Coincident", 1, 2, 2, 1))
sketch8.addConstraint(Sketcher.Constraint("Coincident", 2, 2, 3, 1))
sketch8.addConstraint(Sketcher.Constraint("Coincident", 3, 2, 0, 1))
sketch8.addConstraint(Sketcher.Constraint("Vertical", 0))
sketch8.addConstraint(Sketcher.Constraint("Horizontal", 1))
sketch8.addConstraint(Sketcher.Constraint("Vertical", 2))
sketch8.addConstraint(Sketcher.Constraint("Horizontal", 3))
sketch8.addConstraint(Sketcher.Constraint("DistanceY", 0, 2, -1, 1, Q("21.5 mm")))
sketch8.addConstraint(Sketcher.Constraint("DistanceX", 1, 1, 1, 2, Q("6.486987 mm")))
sketch8.addConstraint(Sketcher.Constraint("DistanceY", 0, 1, 0, 2, Q("5.963843 mm")))
sketch8.addConstraint(Sketcher.Constraint("DistanceX", -1, 1, 0, 2, Q("50.802418 mm")))
pad6 = body.newObject("PartDesign::Pad", "Pad005")
pad6.Profile = sketch8
pad6.Length = 2
pad6.Reversed = True

# Sketch on XZ plane
sketch9 = body.newObject("Sketcher::SketchObject", "Sketch008")
sketch9.AttachmentSupport = (doc.getObject("XZ_Plane"), [""])
sketch9.MapMode = "FlatFace"
sketch9.AttachmentOffset = App.Placement(Vector(0, 0, -4), App.Rotation())
sketch9.addGeometry(Part.Circle(Vector(54, -24.5, 0), Vector(0, 0, 1), 1.7), False)
sketch9.addConstraint(Sketcher.Constraint("Diameter", 0, Q("3.360991 mm")))
sketch9.addConstraint(Sketcher.Constraint("DistanceX", -1, 1, 0, 3, Q("54.045911 mm")))
sketch9.addConstraint(Sketcher.Constraint("DistanceY", 0, 3, -1, 1, Q("24.481921 mm")))
pad7 = body.newObject("PartDesign::Pad", "Pad006")
pad7.Profile = sketch9
pad7.Length = 1
pad7.Reversed = True

# Sketch on XZ plane
sketch10 = body.newObject("Sketcher::SketchObject", "Sketch009")
sketch10.AttachmentSupport = (doc.getObject("XZ_Plane"), [""])
sketch10.MapMode = "FlatFace"
sketch10.AttachmentOffset = App.Placement(Vector(0, 0, -2), App.Rotation())
sketch10.addGeometry(Part.LineSegment(Vector(44.9, -24.9, 0), Vector(36.9, -24.9, 0)), False)
sketch10.addGeometry(Part.ArcOfCircle(Part.Circle(Vector(36.9, -22.9, 0), Vector(0, 0, 1), 2), math.radians(90), math.radians(270)), False)
sketch10.addGeometry(Part.LineSegment(Vector(36.9, -20.9, 0), Vector(44.9, -20.9, 0)), False)
sketch10.addGeometry(Part.ArcOfCircle(Part.Circle(Vector(44.9, -22.9, 0), Vector(0, 0, 1), 2), math.radians(-90), math.radians(90)), False)
sketch10.addConstraint(Sketcher.Constraint("Tangent", 0, 2, 1, 2))
sketch10.addConstraint(Sketcher.Constraint("Tangent", 1, 1, 2, 1))
sketch10.addConstraint(Sketcher.Constraint("Tangent", 2, 2, 3, 2))
sketch10.addConstraint(Sketcher.Constraint("Tangent", 3, 1, 0, 1))
sketch10.addConstraint(Sketcher.Constraint("Horizontal", 0))
sketch10.addConstraint(Sketcher.Constraint("Horizontal", 2))
sketch10.addConstraint(Sketcher.Constraint("Radius", 1, Q("2 mm")))
sketch10.addConstraint(Sketcher.Constraint("DistanceX", 0, 2, 0, 1, Q("8 mm")))
sketch10.addConstraint(Sketcher.Constraint("DistanceY", 1, 3, -1, 1, Q("22.919812 mm")))
sketch10.addConstraint(Sketcher.Constraint("DistanceX", -1, 1, 1, 3, Q("36.859724 mm")))
pad8 = body.newObject("PartDesign::Pad", "Pad007")
pad8.Profile = sketch10
pad8.Length = 1
pad8.Reversed = True

# Sketch on XZ plane
sketch11 = body.newObject("Sketcher::SketchObject", "Sketch010")
sketch11.AttachmentSupport = (doc.getObject("XZ_Plane"), [""])
sketch11.MapMode = "FlatFace"
sketch11.AttachmentOffset = App.Placement(Vector(0, 0, -3), App.Rotation())
sketch11.addGeometry(Part.LineSegment(Vector(44.9, -24.4, 0), Vector(36.9, -24.4, 0)), False)
sketch11.addGeometry(Part.ArcOfCircle(Part.Circle(Vector(36.9, -22.9, 0), Vector(0, 0, 1), 1.5), math.radians(90), math.radians(270)), False)
sketch11.addGeometry(Part.LineSegment(Vector(36.9, -21.4, 0), Vector(44.9, -21.4, 0)), False)
sketch11.addGeometry(Part.ArcOfCircle(Part.Circle(Vector(44.9, -22.9, 0), Vector(0, 0, 1), 1.5), math.radians(-90), math.radians(90)), False)
sketch11.addConstraint(Sketcher.Constraint("Tangent", 0, 2, 1, 2))
sketch11.addConstraint(Sketcher.Constraint("Tangent", 1, 1, 2, 1))
sketch11.addConstraint(Sketcher.Constraint("Tangent", 2, 2, 3, 2))
sketch11.addConstraint(Sketcher.Constraint("Tangent", 3, 1, 0, 1))
sketch11.addConstraint(Sketcher.Constraint("Horizontal", 0))
sketch11.addConstraint(Sketcher.Constraint("Horizontal", 2))
sketch11.addConstraint(Sketcher.Constraint("Radius", 1, Q("1.5 mm")))
sketch11.addConstraint(Sketcher.Constraint("DistanceX", 0, 2, 0, 1, Q("8 mm")))
sketch11.addConstraint(Sketcher.Constraint("DistanceY", 1, 3, -1, 1, Q("22.919812 mm")))
sketch11.addConstraint(Sketcher.Constraint("DistanceX", -1, 1, 1, 3, Q("36.859724 mm")))
pad9 = body.newObject("PartDesign::Pad", "Pad008")
pad9.Profile = sketch11
pad9.Length = 3
pad9.Reversed = True

# Sketch on XZ plane
sketch12 = body.newObject("Sketcher::SketchObject", "Sketch011")
sketch12.AttachmentSupport = (doc.getObject("XZ_Plane"), [""])
sketch12.MapMode = "FlatFace"
sketch12.AttachmentOffset = App.Placement(Vector(0, 0, -2), App.Rotation())
sketch12.addGeometry(Part.LineSegment(Vector(24.1, -34.6, 0), Vector(16.1, -34.6, 0)), False)
sketch12.addGeometry(Part.ArcOfCircle(Part.Circle(Vector(16.1, -32.6, 0), Vector(0, 0, 1), 2), math.radians(90), math.radians(270)), False)
sketch12.addGeometry(Part.LineSegment(Vector(16.1, -30.6, 0), Vector(24.1, -30.6, 0)), False)
sketch12.addGeometry(Part.ArcOfCircle(Part.Circle(Vector(24.1, -32.6, 0), Vector(0, 0, 1), 2), math.radians(-90), math.radians(90)), False)
sketch12.addConstraint(Sketcher.Constraint("Tangent", 0, 2, 1, 2))
sketch12.addConstraint(Sketcher.Constraint("Tangent", 1, 1, 2, 1))
sketch12.addConstraint(Sketcher.Constraint("Tangent", 2, 2, 3, 2))
sketch12.addConstraint(Sketcher.Constraint("Tangent", 3, 1, 0, 1))
sketch12.addConstraint(Sketcher.Constraint("Horizontal", 0))
sketch12.addConstraint(Sketcher.Constraint("Horizontal", 2))
sketch12.addConstraint(Sketcher.Constraint("Radius", 1, Q("2 mm")))
sketch12.addConstraint(Sketcher.Constraint("DistanceX", 0, 2, 0, 1, Q("8 mm")))
sketch12.addConstraint(Sketcher.Constraint("DistanceX", -1, 1, 1, 3, Q("16.059725 mm")))
sketch12.addConstraint(Sketcher.Constraint("DistanceY", 1, 3, -1, 1, Q("32.595334 mm")))
pad10 = body.newObject("PartDesign::Pad", "Pad009")
pad10.Profile = sketch12
pad10.Length = 1
pad10.Reversed = True

# Sketch on XZ plane
sketch13 = body.newObject("Sketcher::SketchObject", "Sketch012")
sketch13.AttachmentSupport = (doc.getObject("XZ_Plane"), [""])
sketch13.MapMode = "FlatFace"
sketch13.AttachmentOffset = App.Placement(Vector(0, 0, -3), App.Rotation())
sketch13.addGeometry(Part.LineSegment(Vector(16.1, -31.1, 0), Vector(24.1, -31.1, 0)), False)
sketch13.addGeometry(Part.ArcOfCircle(Part.Circle(Vector(24.1, -32.6, 0), Vector(0, 0, 1), 1.5), math.radians(-90), math.radians(90)), False)
sketch13.addGeometry(Part.LineSegment(Vector(24.1, -34.1, 0), Vector(16.1, -34.1, 0)), False)
sketch13.addGeometry(Part.ArcOfCircle(Part.Circle(Vector(16.1, -32.6, 0), Vector(0, 0, 1), 1.5), math.radians(90), math.radians(270)), False)
sketch13.addConstraint(Sketcher.Constraint("Tangent", 0, 2, 1, 2))
sketch13.addConstraint(Sketcher.Constraint("Tangent", 1, 1, 2, 1))
sketch13.addConstraint(Sketcher.Constraint("Tangent", 2, 2, 3, 2))
sketch13.addConstraint(Sketcher.Constraint("Tangent", 3, 1, 0, 1))
sketch13.addConstraint(Sketcher.Constraint("Horizontal", 0))
sketch13.addConstraint(Sketcher.Constraint("Horizontal", 2))
sketch13.addConstraint(Sketcher.Constraint("Radius", 1, Q("1.5 mm")))
sketch13.addConstraint(Sketcher.Constraint("DistanceX", 0, 1, 0, 2, Q("8 mm")))
sketch13.addConstraint(Sketcher.Constraint("DistanceX", -1, 1, 1, 3, Q("24.059725 mm")))
sketch13.addConstraint(Sketcher.Constraint("DistanceY", 1, 3, -1, 1, Q("32.595334 mm")))
pad11 = body.newObject("PartDesign::Pad", "Pad010")
pad11.Profile = sketch13
pad11.Length = 3
pad11.Reversed = True

# Sketch on XZ plane
sketch14 = body.newObject("Sketcher::SketchObject", "Sketch013")
sketch14.AttachmentSupport = (doc.getObject("XZ_Plane"), [""])
sketch14.MapMode = "FlatFace"
sketch14.AttachmentOffset = App.Placement(Vector(0, 0, -2), App.Rotation())
sketch14.addGeometry(Part.Circle(Vector(22, -4, 0), Vector(0, 0, 1), 3), False)
sketch14.addGeometry(Part.Circle(Vector(30, -4, 0), Vector(0, 0, 1), 3), False)
sketch14.addConstraint(Sketcher.Constraint("Equal", 0, 1))
sketch14.addConstraint(Sketcher.Constraint("Horizontal", 0, 3, 1, 3))
sketch14.addConstraint(Sketcher.Constraint("Diameter", 0, Q("6 mm")))
sketch14.addConstraint(Sketcher.Constraint("DistanceY", 0, 3, -1, 1, Q("4 mm")))
sketch14.addConstraint(Sketcher.Constraint("DistanceX", 0, 3, 1, 3, Q("8.055951 mm")))
sketch14.addConstraint(Sketcher.Constraint("DistanceX", -1, 1, 0, 3, Q("21.969175 mm")))
pad12 = body.newObject("PartDesign::Pad", "Pad011")
pad12.Profile = sketch14
pad12.Length = 3
pad12.Reversed = True
doc.recompute()

fillet = body.newObject("PartDesign::Fillet", "Fillet")
fillet.Base = (pad12, edges_at(pad12, [(21.969, 5, -7), (30.025, 5, -7)]))
fillet.Radius = 0.3

doc.recompute()
